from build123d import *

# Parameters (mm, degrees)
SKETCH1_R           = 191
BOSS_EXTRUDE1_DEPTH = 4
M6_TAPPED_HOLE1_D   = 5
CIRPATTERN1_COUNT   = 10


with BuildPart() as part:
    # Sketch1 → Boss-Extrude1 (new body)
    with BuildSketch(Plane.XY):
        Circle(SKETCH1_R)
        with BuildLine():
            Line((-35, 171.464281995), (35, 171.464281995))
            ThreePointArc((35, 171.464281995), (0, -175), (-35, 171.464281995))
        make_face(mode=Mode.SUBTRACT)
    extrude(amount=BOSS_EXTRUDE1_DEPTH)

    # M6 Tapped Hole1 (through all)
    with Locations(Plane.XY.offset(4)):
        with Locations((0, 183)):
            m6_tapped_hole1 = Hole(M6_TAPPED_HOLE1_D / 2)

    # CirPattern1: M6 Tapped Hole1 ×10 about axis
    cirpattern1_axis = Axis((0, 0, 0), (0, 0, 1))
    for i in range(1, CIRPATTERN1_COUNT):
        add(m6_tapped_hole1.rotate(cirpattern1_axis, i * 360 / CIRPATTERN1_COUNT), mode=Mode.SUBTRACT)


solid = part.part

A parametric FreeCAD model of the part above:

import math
import FreeCAD as App
import Part
import Sketcher

V = App.Vector
Q = App.Units.Quantity

doc = App.newDocument("Part")
body = doc.addObject("PartDesign::Body", "Body")

sketch1 = body.newObject("Sketcher::SketchObject", "Sketch")
sketch1.AttachmentSupport = (doc.getObject("XY_Plane"), [""])
sketch1.MapMode = "FlatFace"
sketch1.addGeometry([
    Part.Circle(V(0, 0, 0), V(0, 0, 1), 191),
    Part.ArcOfCircle(Part.Circle(V(0, 0, 0), V(0, 0, 1), 175), math.radians(102), math.radians(438)),
    Part.LineSegment(V(-35, 171, 0), V(35, 171, 0)),
], False)
sketch1.addConstraint([
    Sketcher.Constraint("Coincident", 1, 1, 2, 1),
    Sketcher.Constraint("Coincident", 2, 2, 1, 2),
    Sketcher.Constraint("Horizontal", 2),
    Sketcher.Constraint("Coincident", 0, 3, -1, 1),
    Sketcher.Constraint("Coincident", 1, 3, -1, 1),
    Sketcher.Constraint("Diameter", 0, Q("382 mm")),
    Sketcher.Constraint("Radius", 1, Q("175 mm")),
    Sketcher.Constraint("DistanceX", 2, 1, 2, 2, Q("70 mm")),
])
pad1 = body.newObject("PartDesign::Pad", "Pad")
pad1.Profile = sketch1
pad1.Length = 4

sketch2 = body.newObject("Sketcher::SketchObject", "Sketch001")
sketch2.AttachmentSupport = (doc.getObject("XY_Plane"), [""])
sketch2.MapMode = "FlatFace"
sketch2.AttachmentOffset = App.Placement(V(0, 0, 4), App.Rotation())
sketch2.addGeometry(Part.Circle(V(0, 183, 0), V(0, 0, 1), 2.5), False)
sketch2.addConstraint([
    Sketcher.Constraint("PointOnObject", 0, 3, -2),
    Sketcher.Constraint("Diameter", 0, Q("5 mm")),
    Sketcher.Constraint("DistanceY", -1, 1, 0, 3, Q("183 mm")),
])
doc.recompute()
hole = body.newObject("PartDesign::Hole", "Hole")
hole.Profile = sketch2
hole.ThreadType = "None"
hole.Diameter = 5
hole.DepthType = "ThroughAll"
doc.recompute()

polarpattern = body.newObject("PartDesign::PolarPattern", "PolarPattern")
polarpattern.Originals = [hole]
polarpattern.Axis = (doc.getObject("Z_Axis"), [""])
polarpattern.Angle = 360
polarpattern.Occurrences = 10
body.Tip = polarpattern

doc.recompute()
